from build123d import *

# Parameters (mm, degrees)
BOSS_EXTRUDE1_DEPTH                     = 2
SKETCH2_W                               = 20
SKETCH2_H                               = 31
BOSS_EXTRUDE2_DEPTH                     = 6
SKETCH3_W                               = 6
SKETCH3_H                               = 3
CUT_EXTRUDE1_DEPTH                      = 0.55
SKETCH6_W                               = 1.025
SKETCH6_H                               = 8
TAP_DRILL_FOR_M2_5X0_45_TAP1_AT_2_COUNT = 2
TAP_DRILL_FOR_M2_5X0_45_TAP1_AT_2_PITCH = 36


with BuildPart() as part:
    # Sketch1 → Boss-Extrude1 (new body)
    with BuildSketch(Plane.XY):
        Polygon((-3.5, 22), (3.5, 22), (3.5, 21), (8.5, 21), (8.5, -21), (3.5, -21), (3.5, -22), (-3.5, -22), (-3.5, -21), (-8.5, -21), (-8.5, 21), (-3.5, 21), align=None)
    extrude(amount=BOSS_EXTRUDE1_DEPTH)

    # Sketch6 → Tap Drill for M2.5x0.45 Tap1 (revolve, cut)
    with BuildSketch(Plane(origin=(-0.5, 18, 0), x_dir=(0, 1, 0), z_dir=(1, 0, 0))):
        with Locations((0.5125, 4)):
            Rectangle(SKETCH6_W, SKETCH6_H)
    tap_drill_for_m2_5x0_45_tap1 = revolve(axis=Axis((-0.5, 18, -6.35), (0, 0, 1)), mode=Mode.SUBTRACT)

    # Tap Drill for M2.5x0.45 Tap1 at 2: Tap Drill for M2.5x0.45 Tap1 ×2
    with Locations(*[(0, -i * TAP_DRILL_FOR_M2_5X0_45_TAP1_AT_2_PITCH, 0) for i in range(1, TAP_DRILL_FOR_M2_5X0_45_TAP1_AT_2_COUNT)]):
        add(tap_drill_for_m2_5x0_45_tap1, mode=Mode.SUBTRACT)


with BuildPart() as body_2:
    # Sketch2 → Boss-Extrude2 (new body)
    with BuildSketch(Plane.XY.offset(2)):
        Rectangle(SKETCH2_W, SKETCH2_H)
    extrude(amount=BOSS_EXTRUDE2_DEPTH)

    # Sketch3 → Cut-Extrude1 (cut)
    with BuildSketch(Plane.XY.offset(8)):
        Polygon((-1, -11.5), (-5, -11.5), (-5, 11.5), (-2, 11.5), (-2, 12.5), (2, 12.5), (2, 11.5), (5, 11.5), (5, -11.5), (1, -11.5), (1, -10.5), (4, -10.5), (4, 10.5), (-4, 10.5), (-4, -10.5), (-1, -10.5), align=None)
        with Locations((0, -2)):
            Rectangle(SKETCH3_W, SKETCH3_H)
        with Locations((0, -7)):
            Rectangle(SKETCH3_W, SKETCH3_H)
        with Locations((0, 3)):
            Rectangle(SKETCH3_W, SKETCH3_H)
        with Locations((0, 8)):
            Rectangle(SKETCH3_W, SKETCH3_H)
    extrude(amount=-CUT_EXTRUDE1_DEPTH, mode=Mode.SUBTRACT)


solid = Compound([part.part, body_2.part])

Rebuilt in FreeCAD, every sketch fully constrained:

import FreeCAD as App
import Part
import Sketcher

V = App.Vector
Q = App.Units.Quantity

doc = App.newDocument("Part")
params = doc.addObject("Spreadsheet::Sheet", "Params")
for row, (alias, value) in enumerate([
    ("sketch1_width", "7 mm"),
    ("sketch1_width2", "5 mm"),
    ("sketch1_height", "1 mm"),
    ("sketch1_height2", "42 mm"),
    ("pad1_length", "2 mm"),
    ("sketch2_height", "8 mm"),
    ("groove_angle", "360 deg"),
    ("linearpattern_pitch", "36 mm"),
    ("sketch3_width", "20 mm"),
    ("sketch3_height", "31 mm"),
    ("pad2_length", "6 mm"),
    ("sketch4_width", "4 mm"),
    ("sketch4_width2", "3 mm"),
    ("sketch4_width3", "6 mm"),
    ("sketch4_height", "1 mm"),
    ("sketch4_height2", "21 mm"),
    ("pocket1_length", "0.55 mm"),
], start=1):
    params.set(f"A{row}", alias)
    params.set(f"B{row}", "=" + value)
    params.setAlias(f"B{row}", alias)

body = doc.addObject("PartDesign::Body", "Body")

sketch1 = body.newObject("Sketcher::SketchObject", "Sketch")
sketch1.AttachmentSupport = (doc.getObject("XY_Plane"), [""])
sketch1.MapMode = "FlatFace"
sketch1.addGeometry(Part.LineSegment(V(3.5, 22, 0), V(-3.5, 22, 0)), False)
sketch1.addGeometry(Part.LineSegment(V(-3.5, 22, 0), V(-3.5, 21, 0)), False)
sketch1.addGeometry(Part.LineSegment(V(-3.5, 21, 0), V(-8.5, 21, 0)), False)
sketch1.addGeometry(Part.LineSegment(V(-8.5, 21, 0), V(-8.5, -21, 0)), False)
sketch1.addGeometry(Part.LineSegment(V(-8.5, -21, 0), V(-3.5, -21, 0)), False)
sketch1.addGeometry(Part.LineSegment(V(-3.5, -21, 0), V(-3.5, -22, 0)), False)
sketch1.addGeometry(Part.LineSegment(V(-3.5, -22, 0), V(3.5, -22, 0)), False)
sketch1.addGeometry(Part.LineSegment(V(3.5, -22, 0), V(3.5, -21, 0)), False)
sketch1.addGeometry(Part.LineSegment(V(3.5, -21, 0), V(8.5, -21, 0)), False)
sketch1.addGeometry(Part.LineSegment(V(8.5, -21, 0), V(8.5, 21, 0)), False)
sketch1.addGeometry(Part.LineSegment(V(8.5, 21, 0), V(3.5, 21, 0)), False)
sketch1.addGeometry(Part.LineSegment(V(3.5, 21, 0), V(3.5, 22, 0)), False)
sketch1.addConstraint(Sketcher.Constraint("Coincident", 0, 2, 1, 1))
sketch1.addConstraint(Sketcher.Constraint("Coincident", 1, 2, 2, 1))
sketch1.addConstraint(Sketcher.Constraint("Coincident", 2, 2, 3, 1))
sketch1.addConstraint(Sketcher.Constraint("Coincident", 3, 2, 4, 1))
sketch1.addConstraint(Sketcher.Constraint("Coincident", 4, 2, 5, 1))
sketch1.addConstraint(Sketcher.Constraint("Coincident", 5, 2, 6, 1))
sketch1.addConstraint(Sketcher.Constraint("Coincident", 6, 2, 7, 1))
sketch1.addConstraint(Sketcher.Constraint("Coincident", 7, 2, 8, 1))
sketch1.addConstraint(Sketcher.Constraint("Coincident", 8, 2, 9, 1))
sketch1.addConstraint(Sketcher.Constraint("Coincident", 9, 2, 10, 1))
sketch1.addConstraint(Sketcher.Constraint("Coincident", 10, 2, 11, 1))
sketch1.addConstraint(Sketcher.Constraint("Coincident", 11, 2, 0, 1))
sketch1.addConstraint(Sketcher.Constraint("Horizontal", 0))
sketch1.addConstraint(Sketcher.Constraint("Vertical", 1))
sketch1.addConstraint(Sketcher.Constraint("Horizontal", 2))
sketch1.addConstraint(Sketcher.Constraint("Vertical", 3))
sketch1.addConstraint(Sketcher.Constraint("Horizontal", 4))
sketch1.addConstraint(Sketcher.Constraint("Vertical", 5))
sketch1.addConstraint(Sketcher.Constraint("Horizontal", 6))
sketch1.addConstraint(Sketcher.Constraint("Vertical", 7))
sketch1.addConstraint(Sketcher.Constraint("Horizontal", 8))
sketch1.addConstraint(Sketcher.Constraint("Vertical", 9))
sketch1.addConstraint(Sketcher.Constraint("Horizontal", 10))
sketch1.addConstraint(Sketcher.Constraint("Vertical", 11))
sketch1.addConstraint(Sketcher.Constraint("Symmetric", 0, 2, 6, 2, -1, 1))
sketch1.addConstraint(Sketcher.Constraint("Symmetric", 2, 2, 8, 2, -1, 1))
sketch1.addConstraint(Sketcher.Constraint("Symmetric", 4, 2, 10, 2, -1, 1))
sketch1.addConstraint(Sketcher.Constraint("Symmetric", 4, 2, 7, 2, -2))
sketch1.addConstraint(Sketcher.Constraint("DistanceX", 0, 2, 0, 1, Q("7 mm")))
sketch1.addConstraint(Sketcher.Constraint("DistanceX", 2, 2, 2, 1, Q("5 mm")))
sketch1.addConstraint(Sketcher.Constraint("DistanceY", 1, 2, 1, 1, Q("1 mm")))
sketch1.addConstraint(Sketcher.Constraint("DistanceY", 3, 2, 3, 1, Q("42 mm")))
sketch1.setExpression("Constraints[28]", "Params.sketch1_width")
sketch1.setExpression("Constraints[29]", "Params.sketch1_width2")
sketch1.setExpression("Constraints[30]", "Params.sketch1_height")
sketch1.setExpression("Constraints[31]", "Params.sketch1_height2")
pad1 = body.newObject("PartDesign::Pad", "Pad")
pad1.Profile = sketch1
pad1.setExpression("Length", "Params.pad1_length")

sketch2 = body.newObject("Sketcher::SketchObject", "Sketch001")
sketch2.AttachmentSupport = (doc.getObject("YZ_Plane"), [""])
sketch2.MapMode = "FlatFace"
sketch2.AttachmentOffset = App.Placement(V(0, 0, -0.5), App.Rotation())
sketch2.addGeometry(Part.LineSegment(V(18, 8, 0), V(18, 0, 0)), False)
sketch2.addGeometry(Part.LineSegment(V(18, 0, 0), V(19, 0, 0)), False)
sketch2.addGeometry(Part.LineSegment(V(19, 0, 0), V(19, 8, 0)), False)
sketch2.addGeometry(Part.LineSegment(V(19, 8, 0), V(18, 8, 0)), False)
sketch2.addGeometry(Part.LineSegment(V(18, 0, 0), V(18, 8, 0)), True)
sketch2.addConstraint(Sketcher.Constraint("Coincident", 0, 2, 1, 1))
sketch2.addConstraint(Sketcher.Constraint("Coincident", 1, 2, 2, 1))
sketch2.addConstraint(Sketcher.Constraint("Coincident", 2, 2, 3, 1))
sketch2.addConstraint(Sketcher.Constraint("Coincident", 3, 2, 0, 1))
sketch2.addConstraint(Sketcher.Constraint("Vertical", 0))
sketch2.addConstraint(Sketcher.Constraint("Horizontal", 1))
sketch2.addConstraint(Sketcher.Constraint("Vertical", 2))
sketch2.addConstraint(Sketcher.Constraint("Horizontal", 3))
sketch2.addConstraint(Sketcher.Constraint("Vertical", 4))
sketch2.addConstraint(Sketcher.Constraint("Coincident", 4, 1, 0, 2))
sketch2.addConstraint(Sketcher.Constraint("PointOnObject", 0, 2, -1))
sketch2.addConstraint(Sketcher.Constraint("Horizontal", 2, 2, 4, 2))
sketch2.addConstraint(Sketcher.Constraint("DistanceY", 0, 2, 0, 1, Q("8 mm")))
sketch2.addConstraint(Sketcher.Constraint("DistanceX", -1, 1, 0, 2, Q("18 mm")))
sketch2.addConstraint(Sketcher.Constraint("DistanceX", 1, 1, 1, 2, Q("1.025 mm")))
sketch2.setExpression("Constraints[12]", "Params.sketch2_height")
groove = body.newObject("PartDesign::Groove", "Groove")
groove.Profile = sketch2
groove.ReferenceAxis = (sketch2, ["Axis0"])
groove.setExpression("Angle", "Params.groove_angle")
doc.recompute()

linearpattern = body.newObject("PartDesign::LinearPattern", "LinearPattern")
linearpattern.Originals = [groove]
linearpattern.Direction = (doc.getObject("Y_Axis"), [""])
linearpattern.Mode = "offset"
linearpattern.setExpression("Offset", "Params.linearpattern_pitch")
linearpattern.Occurrences = 2
linearpattern.Reversed = True
body.Tip = linearpattern
body2 = doc.addObject("PartDesign::Body", "Body001")

sketch3 = body2.newObject("Sketcher::SketchObject", "Sketch002")
sketch3.AttachmentSupport = (doc.getObject("XY_Plane001"), [""])
sketch3.MapMode = "FlatFace"
sketch3.AttachmentOffset = App.Placement(V(0, 0, 2), App.Rotation())
sketch3.addGeometry(Part.LineSegment(V(-10, 16, 0), V(-10, -16, 0)), False)
sketch3.addGeometry(Part.LineSegment(V(-10, -16, 0), V(10, -16, 0)), False)
sketch3.addGeometry(Part.LineSegment(V(10, -16, 0), V(10, 16, 0)), False)
sketch3.addGeometry(Part.LineSegment(V(10, 16, 0), V(-10, 16, 0)), False)
sketch3.addConstraint(Sketcher.Constraint("Coincident", 0, 2, 1, 1))
sketch3.addConstraint(Sketcher.Constraint("Coincident", 1, 2, 2, 1))
sketch3.addConstraint(Sketcher.Constraint("Coincident", 2, 2, 3, 1))
sketch3.addConstraint(Sketcher.Constraint("Coincident", 3, 2, 0, 1))
sketch3.addConstraint(Sketcher.Constraint("Vertical", 0))
sketch3.addConstraint(Sketcher.Constraint("Horizontal", 1))
sketch3.addConstraint(Sketcher.Constraint("Vertical", 2))
sketch3.addConstraint(Sketcher.Constraint("Horizontal", 3))
sketch3.addConstraint(Sketcher.Constraint("Symmetric", 0, 2, 2, 2, -1, 1))
sketch3.addConstraint(Sketcher.Constraint("DistanceX", 1, 1, 1, 2, Q("20 mm")))
sketch3.addConstraint(Sketcher.Constraint("DistanceY", 0, 2, 0, 1, Q("31 mm")))
sketch3.setExpression("Constraints[9]", "Params.sketch3_width")
sketch3.setExpression("Constraints[10]", "Params.sketch3_height")
pad2 = body2.newObject("PartDesign::Pad", "Pad001")
pad2.Profile = sketch3
pad2.setExpression("Length", "Params.pad2_length")

sketch4 = body2.newObject("Sketcher::SketchObject", "Sketch003")
sketch4.AttachmentSupport = (doc.getObject("XY_Plane001"), [""])
sketch4.MapMode = "FlatFace"
sketch4.AttachmentOffset = App.Placement(V(0, 0, 8), App.Rotation())
sketch4.addGeometry(Part.LineSegment(V(-5, -11.5, 0), V(-1, -11.5, 0)), False)
sketch4.addGeometry(Part.LineSegment(V(-1, -11.5, 0), V(-1, -10.5, 0)), False)
sketch4.addGeometry(Part.LineSegment(V(-1, -10.5, 0), V(-4, -10.5, 0)), False)
sketch4.addGeometry(Part.LineSegment(V(-4, -10.5, 0), V(-4, 10.5, 0)), False)
sketch4.addGeometry(Part.LineSegment(V(-4, 10.5, 0), V(4, 10.5, 0)), False)
sketch4.addGeometry(Part.LineSegment(V(4, 10.5, 0), V(4, -10.5, 0)), False)
sketch4.addGeometry(Part.LineSegment(V(4, -10.5, 0), V(1, -10.5, 0)), False)
sketch4.addGeometry(Part.LineSegment(V(1, -10.5, 0), V(1, -11.5, 0)), False)
sketch4.addGeometry(Part.LineSegment(V(1, -11.5, 0), V(5, -11.5, 0)), False)
sketch4.addGeometry(Part.LineSegment(V(5, -11.5, 0), V(5, 11.5, 0)), False)
sketch4.addGeometry(Part.LineSegment(V(5, 11.5, 0), V(2, 11.5, 0)), False)
sketch4.addGeometry(Part.LineSegment(V(2, 11.5, 0), V(2, 12.5, 0)), False)
sketch4.addGeometry(Part.LineSegment(V(2, 12.5, 0), V(-2, 12.5, 0)), False)
sketch4.addGeometry(Part.LineSegment(V(-2, 12.5, 0), V(-2, 11.5, 0)), False)
sketch4.addGeometry(Part.LineSegment(V(-2, 11.5, 0), V(-5, 11.5, 0)), False)
sketch4.addGeometry(Part.LineSegment(V(-5, 11.5, 0), V(-5, -11.5, 0)), False)
sketch4.addGeometry(Part.LineSegment(V(-3, -0.5, 0), V(-3, -3.5, 0)), False)
sketch4.addGeometry(Part.LineSegment(V(-3, -3.5, 0), V(3, -3.5, 0)), False)
sketch4.addGeometry(Part.LineSegment(V(3, -3.5, 0), V(3, -0.5, 0)), False)
sketch4.addGeometry(Part.LineSegment(V(3, -0.5, 0), V(-3, -0.5, 0)), False)
sketch4.addGeometry(Part.LineSegment(V(-3, -5.5, 0), V(-3, -8.5, 0)), False)
sketch4.addGeometry(Part.LineSegment(V(-3, -8.5, 0), V(3, -8.5, 0)), False)
sketch4.addGeometry(Part.LineSegment(V(3, -8.5, 0), V(3, -5.5, 0)), False)
sketch4.addGeometry(Part.LineSegment(V(3, -5.5, 0), V(-3, -5.5, 0)), False)
sketch4.addGeometry(Part.LineSegment(V(-3, 4.5, 0), V(-3, 1.5, 0)), False)
sketch4.addGeometry(Part.LineSegment(V(-3, 1.5, 0), V(3, 1.5, 0)), False)
sketch4.addGeometry(Part.LineSegment(V(3, 1.5, 0), V(3, 4.5, 0)), False)
sketch4.addGeometry(Part.LineSegment(V(3, 4.5, 0), V(-3, 4.5, 0)), False)
sketch4.addGeometry(Part.LineSegment(V(-3, 9.5, 0), V(-3, 6.5, 0)), False)
sketch4.addGeometry(Part.LineSegment(V(-3, 6.5, 0), V(3, 6.5, 0)), False)
sketch4.addGeometry(Part.LineSegment(V(3, 6.5, 0), V(3, 9.5, 0)), False)
sketch4.addGeometry(Part.LineSegment(V(3, 9.5, 0), V(-3, 9.5, 0)), False)
sketch4.addConstraint(Sketcher.Constraint("Coincident", 0, 2, 1, 1))
sketch4.addConstraint(Sketcher.Constraint("Coincident", 1, 2, 2, 1))
sketch4.addConstraint(Sketcher.Constraint("Coincident", 2, 2, 3, 1))
sketch4.addConstraint(Sketcher.Constraint("Coincident", 3, 2, 4, 1))
sketch4.addConstraint(Sketcher.Constraint("Coincident", 4, 2, 5, 1))
sketch4.addConstraint(Sketcher.Constraint("Coincident", 5, 2, 6, 1))
sketch4.addConstraint(Sketcher.Constraint("Coincident", 6, 2, 7, 1))
sketch4.addConstraint(Sketcher.Constraint("Coincident", 7, 2, 8, 1))
sketch4.addConstraint(Sketcher.Constraint("Coincident", 8, 2, 9, 1))
sketch4.addConstraint(Sketcher.Constraint("Coincident", 9, 2, 10, 1))
sketch4.addConstraint(Sketcher.Constraint("Coincident", 10, 2, 11, 1))
sketch4.addConstraint(Sketcher.Constraint("Coincident", 11, 2, 12, 1))
sketch4.addConstraint(Sketcher.Constraint("Coincident", 12, 2, 13, 1))
sketch4.addConstraint(Sketcher.Constraint("Coincident", 13, 2, 14, 1))
sketch4.addConstraint(Sketcher.Constraint("Coincident", 14, 2, 15, 1))
sketch4.addConstraint(Sketcher.Constraint("Coincident", 15, 2, 0, 1))
sketch4.addConstraint(Sketcher.Constraint("Coincident", 16, 2, 17, 1))
sketch4.addConstraint(Sketcher.Constraint("Coincident", 17, 2, 18, 1))
sketch4.addConstraint(Sketcher.Constraint("Coincident", 18, 2, 19, 1))
sketch4.addConstraint(Sketcher.Constraint("Coincident", 19, 2, 16, 1))
sketch4.addConstraint(Sketcher.Constraint("Coincident", 20, 2, 21, 1))
sketch4.addConstraint(Sketcher.Constraint("Coincident", 21, 2, 22, 1))
sketch4.addConstraint(Sketcher.Constraint("Coincident", 22, 2, 23, 1))
sketch4.addConstraint(Sketcher.Constraint("Coincident", 23, 2, 20, 1))
sketch4.addConstraint(Sketcher.Constraint("Coincident", 24, 2, 25, 1))
sketch4.addConstraint(Sketcher.Constraint("Coincident", 25, 2, 26, 1))
sketch4.addConstraint(Sketcher.Constraint("Coincident", 26, 2, 27, 1))
sketch4.addConstraint(Sketcher.Constraint("Coincident", 27, 2, 24, 1))
sketch4.addConstraint(Sketcher.Constraint("Coincident", 28, 2, 29, 1))
sketch4.addConstraint(Sketcher.Constraint("Coincident", 29, 2, 30, 1))
sketch4.addConstraint(Sketcher.Constraint("Coincident", 30, 2, 31, 1))
sketch4.addConstraint(Sketcher.Constraint("Coincident", 31, 2, 28, 1))
sketch4.addConstraint(Sketcher.Constraint("Horizontal", 0))
sketch4.addConstraint(Sketcher.Constraint("Vertical", 1))
sketch4.addConstraint(Sketcher.Constraint("Horizontal", 2))
sketch4.addConstraint(Sketcher.Constraint("Vertical", 3))
sketch4.addConstraint(Sketcher.Constraint("Horizontal", 4))
sketch4.addConstraint(Sketcher.Constraint("Vertical", 5))
sketch4.addConstraint(Sketcher.Constraint("Horizontal", 6))
sketch4.addConstraint(Sketcher.Constraint("Vertical", 7))
sketch4.addConstraint(Sketcher.Constraint("Horizontal", 8))
sketch4.addConstraint(Sketcher.Constraint("Vertical", 9))
sketch4.addConstraint(Sketcher.Constraint("Horizontal", 10))
sketch4.addConstraint(Sketcher.Constraint("Vertical", 11))
sketch4.addConstraint(Sketcher.Constraint("Horizontal", 12))
sketch4.addConstraint(Sketcher.Constraint("Vertical", 13))
sketch4.addConstraint(Sketcher.Constraint("Horizontal", 14))
sketch4.addConstraint(Sketcher.Constraint("Vertical", 15))
sketch4.addConstraint(Sketcher.Constraint("Vertical", 16))
sketch4.addConstraint(Sketcher.Constraint("Horizontal", 17))
sketch4.addConstraint(Sketcher.Constraint("Vertical", 18))
sketch4.addConstraint(Sketcher.Constraint("Horizontal", 19))
sketch4.addConstraint(Sketcher.Constraint("Vertical", 20))
sketch4.addConstraint(Sketcher.Constraint("Horizontal", 21))
sketch4.addConstraint(Sketcher.Constraint("Vertical", 22))
sketch4.addConstraint(Sketcher.Constraint("Horizontal", 23))
sketch4.addConstraint(Sketcher.Constraint("Vertical", 24))
sketch4.addConstraint(Sketcher.Constraint("Horizontal", 25))
sketch4.addConstraint(Sketcher.Constraint("Vertical", 26))
sketch4.addConstraint(Sketcher.Constraint("Horizontal", 27))
sketch4.addConstraint(Sketcher.Constraint("Vertical", 28))
sketch4.addConstraint(Sketcher.Constraint("Horizontal", 29))
sketch4.addConstraint(Sketcher.Constraint("Vertical", 30))
sketch4.addConstraint(Sketcher.Constraint("Horizontal", 31))
sketch4.addConstraint(Sketcher.Constraint("Symmetric", 2, 2, 4, 2, -1, 1))
sketch4.addConstraint(Sketcher.Constraint("Symmetric", 8, 2, 14, 2, -1, 1))
sketch4.addConstraint(Sketcher.Constraint("Symmetric", 1, 2, 6, 2, -2))
sketch4.addConstraint(Sketcher.Constraint("Symmetric", 10, 2, 13, 2, -2))
sketch4.addConstraint(Sketcher.Constraint("Horizontal", 0, 2, 7, 2))
sketch4.addConstraint(Sketcher.Constraint("Vertical", 19, 2, 20, 2))
sketch4.addConstraint(Sketcher.Constraint("Vertical", 18, 2, 21, 2))
sketch4.addConstraint(Sketcher.Constraint("Vertical", 23, 2, 24, 2))
sketch4.addConstraint(Sketcher.Constraint("Vertical", 22, 2, 25, 2))
sketch4.addConstraint(Sketcher.Constraint("Vertical", 27, 2, 28, 2))
sketch4.addConstraint(Sketcher.Constraint("Vertical", 26, 2, 29, 2))
sketch4.addConstraint(Sketcher.Constraint("Equal", 6, 10))
sketch4.addConstraint(Sketcher.Constraint("Equal", 8, 12))
sketch4.addConstraint(Sketcher.Constraint("Equal", 7, 11))
sketch4.addConstraint(Sketcher.Constraint("Equal", 14, 16))
sketch4.addConstraint(Sketcher.Constraint("Equal", 18, 20))
sketch4.addConstraint(Sketcher.Constraint("Equal", 22, 24))
sketch4.addConstraint(Sketcher.Constraint("Equal", 26, 28))
sketch4.addConstraint(Sketcher.Constraint("DistanceX", 0, 1, 0, 2, Q("4 mm")))
sketch4.addConstraint(Sketcher.Constraint("DistanceX", 2, 2, 2, 1, Q("3 mm")))
sketch4.addConstraint(Sketcher.Constraint("DistanceX", 17, 1, 17, 2, Q("6 mm")))
sketch4.addConstraint(Sketcher.Constraint("DistanceY", 1, 1, 1, 2, Q("1 mm")))
sketch4.addConstraint(Sketcher.Constraint("DistanceY", 3, 1, 3, 2, Q("21 mm")))
sketch4.addConstraint(Sketcher.Constraint("DistanceX", 16, 2, -1, 1, Q("3 mm")))
sketch4.addConstraint(Sketcher.Constraint("DistanceY", 2, 2, 16, 2, Q("7 mm")))
sketch4.addConstraint(Sketcher.Constraint("DistanceY", 2, 2, 20, 2, Q("2 mm")))
sketch4.addConstraint(Sketcher.Constraint("DistanceY", 19, 2, 24, 2, Q("2 mm")))
sketch4.addConstraint(Sketcher.Constraint("DistanceY", 27, 2, 28, 2, Q("2 mm")))
sketch4.setExpression("Constraints[82]", "Params.sketch4_width")
sketch4.setExpression("Constraints[83]", "Params.sketch4_width2")
sketch4.setExpression("Constraints[84]", "Params.sketch4_width3")
sketch4.setExpression("Constraints[85]", "Params.sketch4_height")
sketch4.setExpression("Constraints[86]", "Params.sketch4_height2")
pocket1 = body2.newObject("PartDesign::Pocket", "Pocket")
pocket1.Profile = sketch4
pocket1.setExpression("Length", "Params.pocket1_length")

doc.recompute()
